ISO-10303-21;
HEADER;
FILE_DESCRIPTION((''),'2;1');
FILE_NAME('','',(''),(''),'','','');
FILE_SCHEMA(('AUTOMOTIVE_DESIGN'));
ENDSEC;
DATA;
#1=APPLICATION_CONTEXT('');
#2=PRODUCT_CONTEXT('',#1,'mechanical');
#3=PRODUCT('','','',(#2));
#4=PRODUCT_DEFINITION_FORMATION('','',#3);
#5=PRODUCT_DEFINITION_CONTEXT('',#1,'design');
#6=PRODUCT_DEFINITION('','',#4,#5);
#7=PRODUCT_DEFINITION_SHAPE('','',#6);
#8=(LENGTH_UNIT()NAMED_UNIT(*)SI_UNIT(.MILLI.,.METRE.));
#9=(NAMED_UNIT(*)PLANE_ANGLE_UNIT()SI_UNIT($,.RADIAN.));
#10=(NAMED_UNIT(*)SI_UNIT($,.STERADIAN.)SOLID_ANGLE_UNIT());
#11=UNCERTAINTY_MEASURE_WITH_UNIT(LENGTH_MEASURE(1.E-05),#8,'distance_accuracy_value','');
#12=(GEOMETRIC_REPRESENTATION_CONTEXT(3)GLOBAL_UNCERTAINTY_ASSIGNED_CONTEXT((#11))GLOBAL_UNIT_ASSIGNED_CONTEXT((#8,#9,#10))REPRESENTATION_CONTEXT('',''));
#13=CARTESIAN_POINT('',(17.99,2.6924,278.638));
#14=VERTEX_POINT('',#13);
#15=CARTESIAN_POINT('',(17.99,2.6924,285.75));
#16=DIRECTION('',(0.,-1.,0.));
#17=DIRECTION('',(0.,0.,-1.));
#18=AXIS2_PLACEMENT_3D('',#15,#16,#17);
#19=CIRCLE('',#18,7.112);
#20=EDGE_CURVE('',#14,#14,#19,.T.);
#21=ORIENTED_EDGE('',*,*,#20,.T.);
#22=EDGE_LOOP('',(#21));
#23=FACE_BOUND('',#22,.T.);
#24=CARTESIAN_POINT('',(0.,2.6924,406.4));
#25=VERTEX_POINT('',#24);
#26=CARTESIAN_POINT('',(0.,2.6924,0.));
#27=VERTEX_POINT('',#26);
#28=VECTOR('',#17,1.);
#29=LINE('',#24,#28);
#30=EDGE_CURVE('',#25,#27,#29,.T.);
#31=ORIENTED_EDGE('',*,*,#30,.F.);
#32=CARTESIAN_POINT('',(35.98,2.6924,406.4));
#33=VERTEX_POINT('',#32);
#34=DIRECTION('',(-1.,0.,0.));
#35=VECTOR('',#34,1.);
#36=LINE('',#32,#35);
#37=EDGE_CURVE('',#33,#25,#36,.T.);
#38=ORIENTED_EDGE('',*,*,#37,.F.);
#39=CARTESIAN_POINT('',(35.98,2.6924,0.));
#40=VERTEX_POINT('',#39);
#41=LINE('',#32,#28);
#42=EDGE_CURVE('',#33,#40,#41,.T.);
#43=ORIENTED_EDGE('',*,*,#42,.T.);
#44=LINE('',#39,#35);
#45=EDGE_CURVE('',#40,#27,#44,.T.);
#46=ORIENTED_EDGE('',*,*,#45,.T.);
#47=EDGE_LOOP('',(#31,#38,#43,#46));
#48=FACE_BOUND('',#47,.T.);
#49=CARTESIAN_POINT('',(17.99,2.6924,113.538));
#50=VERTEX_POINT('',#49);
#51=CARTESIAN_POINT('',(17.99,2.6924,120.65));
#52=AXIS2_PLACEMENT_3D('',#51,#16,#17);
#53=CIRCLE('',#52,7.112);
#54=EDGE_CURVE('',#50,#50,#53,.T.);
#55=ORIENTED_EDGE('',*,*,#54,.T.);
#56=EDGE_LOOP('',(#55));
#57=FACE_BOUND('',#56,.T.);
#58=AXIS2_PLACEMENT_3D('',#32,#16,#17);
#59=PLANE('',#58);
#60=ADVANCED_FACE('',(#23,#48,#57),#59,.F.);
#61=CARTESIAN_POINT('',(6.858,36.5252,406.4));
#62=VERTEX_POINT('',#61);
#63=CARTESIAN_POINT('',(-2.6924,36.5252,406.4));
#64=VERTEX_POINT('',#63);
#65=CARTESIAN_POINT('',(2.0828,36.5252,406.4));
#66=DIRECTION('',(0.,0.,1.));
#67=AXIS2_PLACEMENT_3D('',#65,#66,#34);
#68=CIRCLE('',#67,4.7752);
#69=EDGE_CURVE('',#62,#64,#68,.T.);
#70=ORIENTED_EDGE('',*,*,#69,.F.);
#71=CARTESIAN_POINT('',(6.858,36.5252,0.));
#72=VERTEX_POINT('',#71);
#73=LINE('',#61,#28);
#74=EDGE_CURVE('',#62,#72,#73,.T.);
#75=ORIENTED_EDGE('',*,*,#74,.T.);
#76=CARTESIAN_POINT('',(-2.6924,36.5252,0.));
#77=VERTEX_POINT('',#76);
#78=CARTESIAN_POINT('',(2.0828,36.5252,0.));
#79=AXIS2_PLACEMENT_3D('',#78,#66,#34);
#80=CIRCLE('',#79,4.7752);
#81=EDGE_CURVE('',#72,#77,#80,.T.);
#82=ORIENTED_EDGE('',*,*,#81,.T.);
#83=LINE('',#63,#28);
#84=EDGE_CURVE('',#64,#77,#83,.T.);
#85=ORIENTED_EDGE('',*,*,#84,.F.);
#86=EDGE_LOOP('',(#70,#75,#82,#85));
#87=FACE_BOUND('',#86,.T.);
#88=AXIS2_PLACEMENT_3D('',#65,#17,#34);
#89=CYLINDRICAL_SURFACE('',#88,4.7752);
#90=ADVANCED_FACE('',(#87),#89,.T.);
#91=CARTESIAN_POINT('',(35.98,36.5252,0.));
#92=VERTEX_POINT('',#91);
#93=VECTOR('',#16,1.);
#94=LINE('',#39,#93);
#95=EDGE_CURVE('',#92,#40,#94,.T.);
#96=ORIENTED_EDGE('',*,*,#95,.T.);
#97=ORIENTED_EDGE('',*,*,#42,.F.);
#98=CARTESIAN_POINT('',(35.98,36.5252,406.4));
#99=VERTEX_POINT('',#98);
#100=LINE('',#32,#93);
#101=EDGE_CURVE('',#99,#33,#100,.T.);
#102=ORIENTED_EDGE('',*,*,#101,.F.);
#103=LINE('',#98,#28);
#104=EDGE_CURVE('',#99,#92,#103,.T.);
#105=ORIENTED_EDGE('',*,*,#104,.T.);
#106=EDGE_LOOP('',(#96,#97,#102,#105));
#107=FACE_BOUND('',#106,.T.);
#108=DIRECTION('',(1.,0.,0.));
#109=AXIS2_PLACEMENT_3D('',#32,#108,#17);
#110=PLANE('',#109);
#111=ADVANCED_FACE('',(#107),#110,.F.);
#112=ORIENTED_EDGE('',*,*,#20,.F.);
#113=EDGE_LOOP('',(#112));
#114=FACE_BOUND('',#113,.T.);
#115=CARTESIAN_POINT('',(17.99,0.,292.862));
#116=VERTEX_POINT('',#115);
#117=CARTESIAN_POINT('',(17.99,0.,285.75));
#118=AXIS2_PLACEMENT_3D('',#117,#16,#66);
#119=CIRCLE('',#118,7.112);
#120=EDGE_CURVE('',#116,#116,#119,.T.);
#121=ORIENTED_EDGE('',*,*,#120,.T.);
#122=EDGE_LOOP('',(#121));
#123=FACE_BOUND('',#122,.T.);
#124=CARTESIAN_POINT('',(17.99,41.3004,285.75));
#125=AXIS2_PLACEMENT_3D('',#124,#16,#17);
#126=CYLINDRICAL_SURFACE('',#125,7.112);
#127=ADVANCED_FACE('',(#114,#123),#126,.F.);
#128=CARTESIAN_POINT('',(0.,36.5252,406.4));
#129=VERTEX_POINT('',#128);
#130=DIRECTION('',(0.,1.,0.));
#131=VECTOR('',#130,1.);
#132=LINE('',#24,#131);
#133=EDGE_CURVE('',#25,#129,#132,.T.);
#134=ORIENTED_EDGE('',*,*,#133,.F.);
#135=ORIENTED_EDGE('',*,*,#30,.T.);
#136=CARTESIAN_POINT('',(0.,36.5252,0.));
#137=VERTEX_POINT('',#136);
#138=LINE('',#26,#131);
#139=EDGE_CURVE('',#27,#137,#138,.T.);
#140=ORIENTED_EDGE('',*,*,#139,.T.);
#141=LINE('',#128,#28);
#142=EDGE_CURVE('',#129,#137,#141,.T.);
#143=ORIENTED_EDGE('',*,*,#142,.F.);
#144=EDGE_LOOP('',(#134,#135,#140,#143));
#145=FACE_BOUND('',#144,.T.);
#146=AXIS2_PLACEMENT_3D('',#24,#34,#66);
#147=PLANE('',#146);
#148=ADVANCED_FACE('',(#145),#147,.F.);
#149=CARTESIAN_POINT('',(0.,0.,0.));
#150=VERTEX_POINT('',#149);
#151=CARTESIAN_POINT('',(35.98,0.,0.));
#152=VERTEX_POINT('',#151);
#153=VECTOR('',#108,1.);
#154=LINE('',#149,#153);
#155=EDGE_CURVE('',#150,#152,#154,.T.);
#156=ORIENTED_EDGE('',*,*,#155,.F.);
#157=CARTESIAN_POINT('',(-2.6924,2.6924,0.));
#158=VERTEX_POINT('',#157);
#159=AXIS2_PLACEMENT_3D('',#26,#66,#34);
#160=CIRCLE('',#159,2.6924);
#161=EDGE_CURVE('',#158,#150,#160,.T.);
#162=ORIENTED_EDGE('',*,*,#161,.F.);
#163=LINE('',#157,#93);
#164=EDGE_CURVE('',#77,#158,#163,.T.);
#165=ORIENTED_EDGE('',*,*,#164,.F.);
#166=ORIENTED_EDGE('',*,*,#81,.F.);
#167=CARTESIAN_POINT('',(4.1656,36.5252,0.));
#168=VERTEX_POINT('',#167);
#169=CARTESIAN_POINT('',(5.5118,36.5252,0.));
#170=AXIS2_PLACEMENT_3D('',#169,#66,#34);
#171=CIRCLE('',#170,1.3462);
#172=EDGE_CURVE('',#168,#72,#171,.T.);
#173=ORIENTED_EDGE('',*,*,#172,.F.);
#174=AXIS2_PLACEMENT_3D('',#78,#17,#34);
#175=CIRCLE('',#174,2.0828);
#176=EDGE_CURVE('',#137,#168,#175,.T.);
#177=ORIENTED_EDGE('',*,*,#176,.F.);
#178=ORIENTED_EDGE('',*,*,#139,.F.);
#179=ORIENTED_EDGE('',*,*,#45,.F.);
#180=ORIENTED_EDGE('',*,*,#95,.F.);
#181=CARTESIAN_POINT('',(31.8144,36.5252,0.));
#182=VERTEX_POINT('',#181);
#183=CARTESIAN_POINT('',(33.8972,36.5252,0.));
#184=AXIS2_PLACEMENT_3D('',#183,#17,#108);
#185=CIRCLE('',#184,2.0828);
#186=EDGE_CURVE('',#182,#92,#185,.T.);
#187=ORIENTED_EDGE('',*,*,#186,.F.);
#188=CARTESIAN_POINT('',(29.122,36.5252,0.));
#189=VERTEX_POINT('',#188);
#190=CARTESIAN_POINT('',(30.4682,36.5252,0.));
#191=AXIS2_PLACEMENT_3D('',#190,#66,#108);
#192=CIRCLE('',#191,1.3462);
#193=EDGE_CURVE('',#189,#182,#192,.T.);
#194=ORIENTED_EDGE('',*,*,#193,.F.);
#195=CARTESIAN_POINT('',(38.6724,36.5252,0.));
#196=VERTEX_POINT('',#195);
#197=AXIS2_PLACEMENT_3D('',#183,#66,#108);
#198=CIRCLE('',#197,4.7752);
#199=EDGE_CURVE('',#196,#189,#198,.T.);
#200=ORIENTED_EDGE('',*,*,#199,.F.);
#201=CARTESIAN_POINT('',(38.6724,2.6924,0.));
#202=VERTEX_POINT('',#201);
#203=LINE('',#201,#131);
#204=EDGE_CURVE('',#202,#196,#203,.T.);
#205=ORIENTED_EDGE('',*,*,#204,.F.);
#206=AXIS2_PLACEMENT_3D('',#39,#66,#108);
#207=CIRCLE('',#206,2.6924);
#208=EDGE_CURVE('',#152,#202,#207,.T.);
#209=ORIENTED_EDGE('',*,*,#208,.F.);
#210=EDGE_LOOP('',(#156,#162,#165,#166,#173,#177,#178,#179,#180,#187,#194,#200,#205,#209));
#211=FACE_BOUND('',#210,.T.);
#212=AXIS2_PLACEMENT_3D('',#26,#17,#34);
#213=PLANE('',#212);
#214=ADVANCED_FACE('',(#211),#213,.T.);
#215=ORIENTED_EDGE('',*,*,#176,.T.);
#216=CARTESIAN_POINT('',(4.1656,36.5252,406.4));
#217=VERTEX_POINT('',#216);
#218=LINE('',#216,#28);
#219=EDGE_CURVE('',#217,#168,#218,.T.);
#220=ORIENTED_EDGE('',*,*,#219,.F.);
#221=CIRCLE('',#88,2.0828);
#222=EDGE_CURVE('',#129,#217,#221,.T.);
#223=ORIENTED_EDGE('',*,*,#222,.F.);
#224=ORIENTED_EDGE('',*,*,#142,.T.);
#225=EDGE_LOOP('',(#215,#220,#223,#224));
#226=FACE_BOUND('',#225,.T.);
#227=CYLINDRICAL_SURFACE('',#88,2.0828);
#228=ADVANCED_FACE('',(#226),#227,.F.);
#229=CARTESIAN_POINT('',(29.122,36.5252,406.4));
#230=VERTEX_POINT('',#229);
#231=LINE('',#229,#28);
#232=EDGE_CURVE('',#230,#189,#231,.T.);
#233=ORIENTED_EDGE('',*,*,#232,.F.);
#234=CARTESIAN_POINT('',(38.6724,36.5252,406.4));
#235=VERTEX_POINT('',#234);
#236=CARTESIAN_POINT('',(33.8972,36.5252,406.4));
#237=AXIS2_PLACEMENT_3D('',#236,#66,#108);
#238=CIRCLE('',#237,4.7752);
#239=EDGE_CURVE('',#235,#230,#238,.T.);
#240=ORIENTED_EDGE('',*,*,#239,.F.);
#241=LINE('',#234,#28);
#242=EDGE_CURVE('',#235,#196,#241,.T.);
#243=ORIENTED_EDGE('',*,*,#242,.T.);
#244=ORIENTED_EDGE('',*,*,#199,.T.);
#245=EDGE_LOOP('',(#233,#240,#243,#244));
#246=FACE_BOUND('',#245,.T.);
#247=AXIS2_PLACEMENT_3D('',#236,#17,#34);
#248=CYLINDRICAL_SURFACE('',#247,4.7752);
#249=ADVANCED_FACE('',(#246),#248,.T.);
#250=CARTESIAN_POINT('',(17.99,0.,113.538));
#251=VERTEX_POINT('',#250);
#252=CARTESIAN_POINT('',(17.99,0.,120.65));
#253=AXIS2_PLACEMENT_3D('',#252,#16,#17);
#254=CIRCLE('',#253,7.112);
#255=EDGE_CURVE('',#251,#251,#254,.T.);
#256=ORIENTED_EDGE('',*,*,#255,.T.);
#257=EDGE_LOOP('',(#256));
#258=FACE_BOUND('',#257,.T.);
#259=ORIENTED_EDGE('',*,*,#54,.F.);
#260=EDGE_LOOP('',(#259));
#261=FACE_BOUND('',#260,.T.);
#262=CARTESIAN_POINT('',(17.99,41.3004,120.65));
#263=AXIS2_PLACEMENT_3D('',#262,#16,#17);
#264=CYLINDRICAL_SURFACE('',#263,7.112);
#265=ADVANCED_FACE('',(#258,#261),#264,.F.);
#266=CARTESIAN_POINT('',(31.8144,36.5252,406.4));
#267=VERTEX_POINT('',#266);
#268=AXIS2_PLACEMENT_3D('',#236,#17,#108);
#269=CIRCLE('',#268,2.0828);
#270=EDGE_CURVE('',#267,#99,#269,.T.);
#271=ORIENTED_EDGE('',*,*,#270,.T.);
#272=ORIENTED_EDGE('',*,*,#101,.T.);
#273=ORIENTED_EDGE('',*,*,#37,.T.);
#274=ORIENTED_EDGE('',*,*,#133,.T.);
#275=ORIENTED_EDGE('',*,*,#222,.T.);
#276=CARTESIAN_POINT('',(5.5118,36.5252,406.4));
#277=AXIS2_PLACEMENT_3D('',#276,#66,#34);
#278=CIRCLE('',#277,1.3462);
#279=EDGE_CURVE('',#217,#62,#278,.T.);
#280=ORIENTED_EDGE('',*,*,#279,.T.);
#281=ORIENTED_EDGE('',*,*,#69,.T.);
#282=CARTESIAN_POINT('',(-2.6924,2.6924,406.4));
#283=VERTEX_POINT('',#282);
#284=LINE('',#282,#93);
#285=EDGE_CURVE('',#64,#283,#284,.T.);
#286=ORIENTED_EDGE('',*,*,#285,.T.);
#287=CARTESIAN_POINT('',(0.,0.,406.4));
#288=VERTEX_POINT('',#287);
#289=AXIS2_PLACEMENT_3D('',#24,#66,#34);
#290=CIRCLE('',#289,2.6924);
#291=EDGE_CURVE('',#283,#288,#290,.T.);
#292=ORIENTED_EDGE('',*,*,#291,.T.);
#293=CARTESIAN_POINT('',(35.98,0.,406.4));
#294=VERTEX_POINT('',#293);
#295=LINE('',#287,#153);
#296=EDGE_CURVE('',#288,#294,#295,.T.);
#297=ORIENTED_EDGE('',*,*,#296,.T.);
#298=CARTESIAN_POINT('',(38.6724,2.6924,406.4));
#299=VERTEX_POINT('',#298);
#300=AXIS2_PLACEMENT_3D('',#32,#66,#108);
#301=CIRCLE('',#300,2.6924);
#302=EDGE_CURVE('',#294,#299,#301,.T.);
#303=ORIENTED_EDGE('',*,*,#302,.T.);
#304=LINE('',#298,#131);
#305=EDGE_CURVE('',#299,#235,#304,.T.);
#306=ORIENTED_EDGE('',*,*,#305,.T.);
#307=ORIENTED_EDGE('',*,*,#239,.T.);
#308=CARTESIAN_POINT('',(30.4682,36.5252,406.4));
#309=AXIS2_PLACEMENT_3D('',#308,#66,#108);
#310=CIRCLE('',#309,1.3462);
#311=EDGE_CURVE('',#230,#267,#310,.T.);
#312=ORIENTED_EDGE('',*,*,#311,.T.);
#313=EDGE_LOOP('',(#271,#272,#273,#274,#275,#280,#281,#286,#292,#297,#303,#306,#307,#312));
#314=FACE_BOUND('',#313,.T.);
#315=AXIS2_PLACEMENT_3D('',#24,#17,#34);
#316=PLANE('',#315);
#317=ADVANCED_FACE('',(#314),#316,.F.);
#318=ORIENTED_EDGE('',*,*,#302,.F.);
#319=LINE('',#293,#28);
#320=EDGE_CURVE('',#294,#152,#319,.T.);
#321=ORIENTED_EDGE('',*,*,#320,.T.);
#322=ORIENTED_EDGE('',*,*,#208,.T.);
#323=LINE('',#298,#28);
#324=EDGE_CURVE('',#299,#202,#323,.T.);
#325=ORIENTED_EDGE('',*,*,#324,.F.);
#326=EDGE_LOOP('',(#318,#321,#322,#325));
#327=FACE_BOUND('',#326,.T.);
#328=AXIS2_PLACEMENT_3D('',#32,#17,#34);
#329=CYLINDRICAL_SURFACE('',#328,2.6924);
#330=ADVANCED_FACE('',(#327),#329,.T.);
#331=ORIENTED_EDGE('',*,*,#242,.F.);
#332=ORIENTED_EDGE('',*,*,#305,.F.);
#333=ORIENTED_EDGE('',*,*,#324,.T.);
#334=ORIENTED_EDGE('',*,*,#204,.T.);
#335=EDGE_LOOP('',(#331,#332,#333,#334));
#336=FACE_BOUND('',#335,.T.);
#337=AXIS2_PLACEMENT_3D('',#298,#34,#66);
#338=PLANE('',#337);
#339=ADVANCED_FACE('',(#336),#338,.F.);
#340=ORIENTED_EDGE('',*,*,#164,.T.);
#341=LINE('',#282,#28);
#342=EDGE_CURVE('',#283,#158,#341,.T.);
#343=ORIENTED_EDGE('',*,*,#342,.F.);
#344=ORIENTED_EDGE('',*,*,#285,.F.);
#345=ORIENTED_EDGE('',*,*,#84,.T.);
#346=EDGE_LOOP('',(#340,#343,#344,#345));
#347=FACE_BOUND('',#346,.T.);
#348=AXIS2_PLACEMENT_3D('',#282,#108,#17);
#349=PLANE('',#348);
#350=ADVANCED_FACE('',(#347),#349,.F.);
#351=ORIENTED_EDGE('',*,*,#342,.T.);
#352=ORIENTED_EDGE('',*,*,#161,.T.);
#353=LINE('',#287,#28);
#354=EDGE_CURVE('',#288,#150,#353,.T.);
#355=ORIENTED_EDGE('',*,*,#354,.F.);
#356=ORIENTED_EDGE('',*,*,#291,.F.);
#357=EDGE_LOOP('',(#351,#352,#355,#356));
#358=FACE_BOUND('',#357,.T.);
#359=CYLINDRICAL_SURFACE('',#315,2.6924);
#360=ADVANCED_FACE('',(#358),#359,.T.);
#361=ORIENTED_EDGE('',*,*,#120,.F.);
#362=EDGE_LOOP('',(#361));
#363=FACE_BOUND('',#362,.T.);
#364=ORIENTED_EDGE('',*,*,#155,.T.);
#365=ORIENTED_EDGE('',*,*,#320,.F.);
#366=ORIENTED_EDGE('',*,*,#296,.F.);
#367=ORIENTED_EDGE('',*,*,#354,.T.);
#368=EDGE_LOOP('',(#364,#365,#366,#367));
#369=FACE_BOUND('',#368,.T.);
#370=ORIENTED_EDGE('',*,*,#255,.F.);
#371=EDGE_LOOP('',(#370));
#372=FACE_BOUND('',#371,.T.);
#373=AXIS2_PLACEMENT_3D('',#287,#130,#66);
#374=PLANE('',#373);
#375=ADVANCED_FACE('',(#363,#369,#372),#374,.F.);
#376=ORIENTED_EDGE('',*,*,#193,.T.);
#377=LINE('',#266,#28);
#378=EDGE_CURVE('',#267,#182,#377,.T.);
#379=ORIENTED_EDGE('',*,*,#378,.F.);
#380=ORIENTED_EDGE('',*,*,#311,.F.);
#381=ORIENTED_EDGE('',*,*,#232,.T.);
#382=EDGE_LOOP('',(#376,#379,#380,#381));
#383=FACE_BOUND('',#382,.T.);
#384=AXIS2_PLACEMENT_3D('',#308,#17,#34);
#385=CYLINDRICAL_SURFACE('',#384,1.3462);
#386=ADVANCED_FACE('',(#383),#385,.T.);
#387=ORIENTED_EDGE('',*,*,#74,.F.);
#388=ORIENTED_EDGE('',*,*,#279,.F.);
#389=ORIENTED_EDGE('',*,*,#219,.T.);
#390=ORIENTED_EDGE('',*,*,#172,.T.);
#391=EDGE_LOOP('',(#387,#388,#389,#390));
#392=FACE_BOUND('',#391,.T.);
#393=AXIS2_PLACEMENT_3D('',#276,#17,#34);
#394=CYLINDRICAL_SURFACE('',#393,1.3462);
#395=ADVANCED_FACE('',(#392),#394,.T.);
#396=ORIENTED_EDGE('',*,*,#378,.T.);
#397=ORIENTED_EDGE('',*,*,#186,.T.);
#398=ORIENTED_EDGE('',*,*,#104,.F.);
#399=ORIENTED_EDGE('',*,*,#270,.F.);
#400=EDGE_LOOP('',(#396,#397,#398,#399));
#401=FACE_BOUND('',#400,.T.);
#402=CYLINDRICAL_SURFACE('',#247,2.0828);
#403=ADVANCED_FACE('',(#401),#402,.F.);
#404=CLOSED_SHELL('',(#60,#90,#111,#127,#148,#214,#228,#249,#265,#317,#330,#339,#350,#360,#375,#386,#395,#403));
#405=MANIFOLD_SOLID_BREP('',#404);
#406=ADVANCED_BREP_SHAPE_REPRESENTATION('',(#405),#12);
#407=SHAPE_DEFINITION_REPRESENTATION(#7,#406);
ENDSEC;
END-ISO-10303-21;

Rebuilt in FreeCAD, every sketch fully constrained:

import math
import FreeCAD as App
import Part
import Sketcher
from FreeCAD import Vector
Q = App.Units.Quantity

doc = App.newDocument("Part")
body = doc.addObject("PartDesign::Body", "Body")

# Sketch on XY plane
sketch1 = body.newObject("Sketcher::SketchObject", "Sketch")
sketch1.AttachmentSupport = (doc.getObject("XY_Plane"), [""])
sketch1.MapMode = "FlatFace"
sketch1.addGeometry([
    Part.LineSegment(Vector(0, 0, 0), Vector(36, 0, 0)),  # 0
    Part.ArcOfCircle(Part.Circle(Vector(36, 2.7, 0), Vector(0, 0, 1), 2.7), math.radians(-90), math.radians(0)),  # 1
    Part.LineSegment(Vector(38.7, 2.7, 0), Vector(38.7, 36.5, 0)),  # 2
    Part.ArcOfCircle(Part.Circle(Vector(33.9, 36.5, 0), Vector(0, 0, 1), 4.8), math.radians(0), math.radians(180)),  # 3
    Part.ArcOfCircle(Part.Circle(Vector(30.5, 36.5, 0), Vector(0, 0, 1), 1.3), math.radians(180), math.radians(360)),  # 4
    Part.ArcOfCircle(Part.Circle(Vector(33.9, 36.5, 0), Vector(0, 0, 1), 2.1), math.radians(0), math.radians(180)),  # 5
    Part.LineSegment(Vector(36, 36.5, 0), Vector(36, 2.7, 0)),  # 6
    Part.LineSegment(Vector(36, 2.7, 0), Vector(0, 2.7, 0)),  # 7
    Part.LineSegment(Vector(0, 2.7, 0), Vector(0, 36.5, 0)),  # 8
    Part.ArcOfCircle(Part.Circle(Vector(2.1, 36.5, 0), Vector(0, 0, 1), 2.1), math.radians(0), math.radians(180)),  # 9
    Part.ArcOfCircle(Part.Circle(Vector(5.5, 36.5, 0), Vector(0, 0, 1), 1.3), math.radians(180), math.radians(360)),  # 10
    Part.ArcOfCircle(Part.Circle(Vector(2.1, 36.5, 0), Vector(0, 0, 1), 4.8), math.radians(0), math.radians(180)),  # 11
    Part.LineSegment(Vector(-2.7, 36.5, 0), Vector(-2.7, 2.7, 0)),  # 12
    Part.ArcOfCircle(Part.Circle(Vector(0, 2.7, 0), Vector(0, 0, 1), 2.7), math.radians(180), math.radians(270)),  # 13
], False)
sketch1.addConstraint([
    Sketcher.Constraint("Tangent", 0, 2, 1, 1),
    Sketcher.Constraint("Tangent", 1, 2, 2, 1),
    Sketcher.Constraint("Tangent", 2, 2, 3, 1),
    Sketcher.Constraint("Tangent", 3, 2, 4, 1),
    Sketcher.Constraint("Tangent", 4, 2, 5, 2),
    Sketcher.Constraint("Tangent", 5, 1, 6, 1),
    Sketcher.Constraint("Coincident", 6, 2, 7, 1),
    Sketcher.Constraint("Coincident", 7, 2, 8, 1),
    Sketcher.Constraint("Tangent", 8, 2, 9, 2),
    Sketcher.Constraint("Tangent", 9, 1, 10, 1),
    Sketcher.Constraint("Tangent", 10, 2, 11, 1),
    Sketcher.Constraint("Tangent", 11, 2, 12, 1),
    Sketcher.Constraint("Tangent", 12, 2, 13, 1),
    Sketcher.Constraint("Tangent", 13, 2, 0, 1),
    Sketcher.Constraint("Horizontal", 0),
    Sketcher.Constraint("Vertical", 2),
    Sketcher.Constraint("Vertical", 6),
    Sketcher.Constraint("Horizontal", 7),
    Sketcher.Constraint("Vertical", 8),
    Sketcher.Constraint("Vertical", 12),
    Sketcher.Constraint("Coincident", 13, 2, -1, 1),
    Sketcher.Constraint("Coincident", 5, 3, 3, 3),
    Sketcher.Constraint("Coincident", 11, 3, 9, 3),
    Sketcher.Constraint("Coincident", 6, 2, 1, 3),
    Sketcher.Constraint("Coincident", 7, 2, 13, 3),
    Sketcher.Constraint("Equal", 5, 9),
    Sketcher.Constraint("Horizontal", 3, 3, 4, 3),
    Sketcher.Constraint("Horizontal", 5, 3, 9, 3),
    Sketcher.Constraint("Horizontal", 9, 3, 10, 3),
    Sketcher.Constraint("Radius", 1, Q("0.106 in")),
    Sketcher.Constraint("Radius", 3, Q("0.188 in")),
    Sketcher.Constraint("DistanceY", 2, 1, 2, 2, Q("1.332 in")),
    Sketcher.Constraint("DistanceX", 0, 1, 0, 2, 35.98),
])
pad1 = body.newObject("PartDesign::Pad", "Pad")
pad1.Profile = sketch1
pad1.Length = Q("16 in")

# Sketch on XZ plane
sketch2 = body.newObject("Sketcher::SketchObject", "Sketch001")
sketch2.AttachmentSupport = (doc.getObject("XZ_Plane"), [""])
sketch2.MapMode = "FlatFace"
sketch2.addGeometry([
    Part.Circle(Vector(18, 121, 0), Vector(0, 0, 1), 7),
    Part.Circle(Vector(18, 286, 0), Vector(0, 0, 1), 7),
], False)
sketch2.addConstraint([
    Sketcher.Constraint("Equal", 0, 1),
    Sketcher.Constraint("Vertical", 0, 3, 1, 3),
    Sketcher.Constraint("Diameter", 0, Q("0.56 in")),
    Sketcher.Constraint("DistanceY", 0, 3, 1, 3, Q("6.5 in")),
    Sketcher.Constraint("DistanceY", -1, 1, 0, 3, Q("4.75 in")),
    Sketcher.Constraint("DistanceX", -1, 1, 0, 3, 17.99),
])
pocket1 = body.newObject("PartDesign::Pocket", "Pocket")
pocket1.Profile = sketch2
pocket1.Type = "ThroughAll"

doc.recompute()
